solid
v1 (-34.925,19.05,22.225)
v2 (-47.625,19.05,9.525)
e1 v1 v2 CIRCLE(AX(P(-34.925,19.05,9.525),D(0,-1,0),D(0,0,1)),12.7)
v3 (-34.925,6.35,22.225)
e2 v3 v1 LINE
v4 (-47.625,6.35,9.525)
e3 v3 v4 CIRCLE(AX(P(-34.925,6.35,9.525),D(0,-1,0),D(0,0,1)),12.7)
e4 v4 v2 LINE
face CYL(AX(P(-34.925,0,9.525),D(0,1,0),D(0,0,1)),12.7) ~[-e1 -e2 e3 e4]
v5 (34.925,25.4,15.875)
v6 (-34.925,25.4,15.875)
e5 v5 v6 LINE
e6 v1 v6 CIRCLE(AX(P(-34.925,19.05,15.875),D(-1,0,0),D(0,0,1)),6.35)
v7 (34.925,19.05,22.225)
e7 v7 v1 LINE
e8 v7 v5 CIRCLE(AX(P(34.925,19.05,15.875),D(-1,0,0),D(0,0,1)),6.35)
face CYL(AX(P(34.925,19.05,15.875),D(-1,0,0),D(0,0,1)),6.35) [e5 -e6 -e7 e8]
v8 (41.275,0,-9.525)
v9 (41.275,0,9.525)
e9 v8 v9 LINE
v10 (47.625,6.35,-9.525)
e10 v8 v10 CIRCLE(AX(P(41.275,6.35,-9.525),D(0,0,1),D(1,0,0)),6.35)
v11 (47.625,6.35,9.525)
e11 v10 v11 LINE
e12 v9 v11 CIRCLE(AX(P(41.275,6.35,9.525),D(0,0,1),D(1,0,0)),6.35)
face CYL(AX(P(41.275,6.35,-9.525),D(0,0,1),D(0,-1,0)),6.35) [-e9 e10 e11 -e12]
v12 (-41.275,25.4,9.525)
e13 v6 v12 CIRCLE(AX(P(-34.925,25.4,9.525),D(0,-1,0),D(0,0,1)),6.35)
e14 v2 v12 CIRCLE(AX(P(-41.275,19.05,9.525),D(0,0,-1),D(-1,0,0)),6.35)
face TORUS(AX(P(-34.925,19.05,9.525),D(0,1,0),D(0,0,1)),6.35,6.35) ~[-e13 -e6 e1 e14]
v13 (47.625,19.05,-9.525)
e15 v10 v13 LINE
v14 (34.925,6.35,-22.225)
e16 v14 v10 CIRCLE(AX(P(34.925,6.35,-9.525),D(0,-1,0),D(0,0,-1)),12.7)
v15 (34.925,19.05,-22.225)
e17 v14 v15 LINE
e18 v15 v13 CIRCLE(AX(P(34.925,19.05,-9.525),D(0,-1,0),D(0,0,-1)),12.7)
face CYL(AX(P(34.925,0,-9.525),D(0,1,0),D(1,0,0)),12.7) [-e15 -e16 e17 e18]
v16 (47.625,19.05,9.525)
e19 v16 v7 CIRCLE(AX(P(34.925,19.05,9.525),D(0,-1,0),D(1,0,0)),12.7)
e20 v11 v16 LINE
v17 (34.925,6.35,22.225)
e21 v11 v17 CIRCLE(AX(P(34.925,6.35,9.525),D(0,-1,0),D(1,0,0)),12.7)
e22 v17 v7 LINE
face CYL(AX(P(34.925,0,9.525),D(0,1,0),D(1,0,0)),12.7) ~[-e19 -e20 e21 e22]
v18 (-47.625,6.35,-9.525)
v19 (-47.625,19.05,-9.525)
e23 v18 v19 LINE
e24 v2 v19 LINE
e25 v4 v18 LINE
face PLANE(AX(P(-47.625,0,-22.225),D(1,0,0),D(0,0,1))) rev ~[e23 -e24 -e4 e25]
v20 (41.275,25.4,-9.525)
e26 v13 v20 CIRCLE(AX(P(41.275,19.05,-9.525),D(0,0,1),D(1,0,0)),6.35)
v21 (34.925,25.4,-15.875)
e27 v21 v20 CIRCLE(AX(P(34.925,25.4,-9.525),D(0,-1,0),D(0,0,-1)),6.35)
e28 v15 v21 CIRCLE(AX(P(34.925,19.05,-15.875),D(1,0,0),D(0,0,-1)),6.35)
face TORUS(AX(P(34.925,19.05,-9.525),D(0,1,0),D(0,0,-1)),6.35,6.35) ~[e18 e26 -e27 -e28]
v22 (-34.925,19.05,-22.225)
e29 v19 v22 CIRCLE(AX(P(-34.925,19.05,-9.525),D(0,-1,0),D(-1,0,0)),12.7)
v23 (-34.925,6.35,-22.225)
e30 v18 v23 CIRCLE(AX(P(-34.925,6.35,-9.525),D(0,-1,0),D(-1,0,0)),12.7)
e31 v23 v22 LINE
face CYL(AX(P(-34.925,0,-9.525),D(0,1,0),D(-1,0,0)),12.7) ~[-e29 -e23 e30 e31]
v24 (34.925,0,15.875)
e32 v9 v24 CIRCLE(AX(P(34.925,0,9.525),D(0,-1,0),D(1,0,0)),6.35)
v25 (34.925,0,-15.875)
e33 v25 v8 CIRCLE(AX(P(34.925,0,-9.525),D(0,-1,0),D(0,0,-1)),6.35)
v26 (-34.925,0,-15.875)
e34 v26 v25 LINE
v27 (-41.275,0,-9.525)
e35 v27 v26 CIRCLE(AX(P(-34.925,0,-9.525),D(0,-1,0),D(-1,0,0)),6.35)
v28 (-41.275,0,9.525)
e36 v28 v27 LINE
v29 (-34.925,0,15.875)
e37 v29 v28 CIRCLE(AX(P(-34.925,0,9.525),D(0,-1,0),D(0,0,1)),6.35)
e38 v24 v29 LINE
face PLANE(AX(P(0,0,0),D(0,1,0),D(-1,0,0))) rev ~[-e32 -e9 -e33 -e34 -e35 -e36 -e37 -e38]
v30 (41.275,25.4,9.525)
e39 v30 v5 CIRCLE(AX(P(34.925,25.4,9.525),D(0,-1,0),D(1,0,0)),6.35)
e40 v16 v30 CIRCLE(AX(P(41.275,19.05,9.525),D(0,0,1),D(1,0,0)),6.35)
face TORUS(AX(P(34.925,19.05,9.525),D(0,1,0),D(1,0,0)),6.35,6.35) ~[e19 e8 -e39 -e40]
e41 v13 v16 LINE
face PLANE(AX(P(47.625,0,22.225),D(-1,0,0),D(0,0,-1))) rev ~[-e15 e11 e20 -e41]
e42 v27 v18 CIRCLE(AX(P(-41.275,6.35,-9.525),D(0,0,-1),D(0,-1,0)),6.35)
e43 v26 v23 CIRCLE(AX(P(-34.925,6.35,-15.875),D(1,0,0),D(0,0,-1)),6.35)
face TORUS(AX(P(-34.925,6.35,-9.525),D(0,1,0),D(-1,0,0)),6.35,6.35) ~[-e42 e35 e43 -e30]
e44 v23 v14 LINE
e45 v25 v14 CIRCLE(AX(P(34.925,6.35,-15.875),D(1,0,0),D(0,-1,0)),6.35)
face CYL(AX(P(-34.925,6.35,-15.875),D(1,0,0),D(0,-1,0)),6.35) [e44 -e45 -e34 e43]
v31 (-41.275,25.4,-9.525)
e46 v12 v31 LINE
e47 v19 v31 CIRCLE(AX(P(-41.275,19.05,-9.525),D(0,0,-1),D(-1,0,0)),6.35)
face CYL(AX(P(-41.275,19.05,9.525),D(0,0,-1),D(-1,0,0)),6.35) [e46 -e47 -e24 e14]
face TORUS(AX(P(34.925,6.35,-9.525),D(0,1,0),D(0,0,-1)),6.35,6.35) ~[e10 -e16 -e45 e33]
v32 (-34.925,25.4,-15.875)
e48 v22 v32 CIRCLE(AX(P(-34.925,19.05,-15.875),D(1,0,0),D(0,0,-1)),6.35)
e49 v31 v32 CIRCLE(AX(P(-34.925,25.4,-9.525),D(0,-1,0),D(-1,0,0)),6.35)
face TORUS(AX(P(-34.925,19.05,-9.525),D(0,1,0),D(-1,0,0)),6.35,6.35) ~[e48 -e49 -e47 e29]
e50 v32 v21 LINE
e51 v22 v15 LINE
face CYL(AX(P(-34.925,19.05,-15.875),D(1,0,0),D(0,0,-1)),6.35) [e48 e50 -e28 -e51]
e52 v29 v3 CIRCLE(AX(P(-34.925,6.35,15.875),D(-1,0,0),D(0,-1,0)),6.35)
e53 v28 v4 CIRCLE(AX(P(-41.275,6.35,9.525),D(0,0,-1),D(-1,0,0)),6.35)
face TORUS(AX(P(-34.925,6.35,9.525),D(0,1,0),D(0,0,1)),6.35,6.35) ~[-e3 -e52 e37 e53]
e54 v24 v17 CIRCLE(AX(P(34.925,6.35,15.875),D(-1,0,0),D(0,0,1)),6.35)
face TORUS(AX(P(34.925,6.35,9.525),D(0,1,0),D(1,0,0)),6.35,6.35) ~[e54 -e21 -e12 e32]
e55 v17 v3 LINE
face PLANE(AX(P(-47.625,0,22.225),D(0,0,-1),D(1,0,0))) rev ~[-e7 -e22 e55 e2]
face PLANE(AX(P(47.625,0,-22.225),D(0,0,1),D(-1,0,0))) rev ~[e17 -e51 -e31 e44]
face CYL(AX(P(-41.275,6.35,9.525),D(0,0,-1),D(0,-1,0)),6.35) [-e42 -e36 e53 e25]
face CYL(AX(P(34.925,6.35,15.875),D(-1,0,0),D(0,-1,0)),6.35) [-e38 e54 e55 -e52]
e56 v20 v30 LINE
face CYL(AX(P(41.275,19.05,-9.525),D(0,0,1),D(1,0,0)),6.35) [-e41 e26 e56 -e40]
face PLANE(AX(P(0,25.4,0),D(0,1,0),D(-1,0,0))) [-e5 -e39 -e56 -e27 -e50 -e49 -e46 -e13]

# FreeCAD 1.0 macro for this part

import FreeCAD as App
import Part
import Sketcher

V = App.Vector
Q = App.Units.Quantity


def edges_at(feature, points):
    """Names of the edges that pass closest to the given points."""
    edges = feature.Shape.Edges
    near = lambda p: min(range(len(edges)), key=lambda i: edges[i].distToShape(Part.Vertex(*p))[0])
    return sorted({f"Edge{near(p) + 1}" for p in points})

doc = App.newDocument("Part")
body = doc.addObject("PartDesign::Body", "Body")

# Sketch on XZ plane
sketch1 = body.newObject("Sketcher::SketchObject", "Sketch")
sketch1.AttachmentSupport = (doc.getObject("XZ_Plane"), [""])
sketch1.MapMode = "FlatFace"
sketch1.addGeometry(Part.LineSegment(V(47.625, 22.225, 0), V(47.625, -22.225, 0)), False)
sketch1.addGeometry(Part.LineSegment(V(47.625, -22.225, 0), V(-47.625, -22.225, 0)), False)
sketch1.addGeometry(Part.LineSegment(V(-47.625, -22.225, 0), V(-47.625, 22.225, 0)), False)
sketch1.addGeometry(Part.LineSegment(V(-47.625, 22.225, 0), V(47.625, 22.225, 0)), False)
sketch1.addConstraint(Sketcher.Constraint("Coincident", 0, 2, 1, 1))
sketch1.addConstraint(Sketcher.Constraint("Coincident", 1, 2, 2, 1))
sketch1.addConstraint(Sketcher.Constraint("Coincident", 2, 2, 3, 1))
sketch1.addConstraint(Sketcher.Constraint("Coincident", 3, 2, 0, 1))
sketch1.addConstraint(Sketcher.Constraint("Vertical", 0))
sketch1.addConstraint(Sketcher.Constraint("Horizontal", 1))
sketch1.addConstraint(Sketcher.Constraint("Vertical", 2))
sketch1.addConstraint(Sketcher.Constraint("Horizontal", 3))
sketch1.addConstraint(Sketcher.Constraint("Symmetric", 0, 2, 2, 2, -1, 1))
sketch1.addConstraint(Sketcher.Constraint("DistanceX", 1, 2, 1, 1, Q("3.75 in")))
sketch1.addConstraint(Sketcher.Constraint("DistanceY", 0, 2, 0, 1, Q("1.75 in")))
pad1 = body.newObject("PartDesign::Pad", "Pad")
pad1.Profile = sketch1
pad1.Length = Q("1 in")
pad1.Reversed = True
doc.recompute()

fillet = body.newObject("PartDesign::Fillet", "Fillet")
fillet.Base = (pad1, edges_at(pad1, [
    (-47.625, 12.7, 22.225),
    (47.625, 12.7, 22.225),
    (47.625, 12.7, -22.225),
    (-47.625, 12.7, -22.225),
]))
fillet.Radius = Q("0.5 in")
doc.recompute()

fillet2 = body.newObject("PartDesign::Fillet", "Fillet001")
fillet2.Base = (fillet, edges_at(fillet, [
    (43.905, 25.4, 18.505),
    (47.625, 25.4, 0),
    (43.905, 25.4, -18.505),
    (0, 25.4, -22.225),
    (-43.905, 25.4, -18.505),
    (-47.625, 25.4, 0),
    (-43.905, 25.4, 18.505),
    (0, 25.4, 22.225),
    (43.905, 0, 18.505),
    (47.625, 0, 0),
    (43.905, 0, -18.505),
    (0, 0, -22.225),
    (-43.905, 0, -18.505),
    (-47.625, 0, 0),
    (-43.905, 0, 18.505),
    (0, 0, 22.225),
]))
fillet2.Radius = Q("0.25 in")

doc.recompute()
